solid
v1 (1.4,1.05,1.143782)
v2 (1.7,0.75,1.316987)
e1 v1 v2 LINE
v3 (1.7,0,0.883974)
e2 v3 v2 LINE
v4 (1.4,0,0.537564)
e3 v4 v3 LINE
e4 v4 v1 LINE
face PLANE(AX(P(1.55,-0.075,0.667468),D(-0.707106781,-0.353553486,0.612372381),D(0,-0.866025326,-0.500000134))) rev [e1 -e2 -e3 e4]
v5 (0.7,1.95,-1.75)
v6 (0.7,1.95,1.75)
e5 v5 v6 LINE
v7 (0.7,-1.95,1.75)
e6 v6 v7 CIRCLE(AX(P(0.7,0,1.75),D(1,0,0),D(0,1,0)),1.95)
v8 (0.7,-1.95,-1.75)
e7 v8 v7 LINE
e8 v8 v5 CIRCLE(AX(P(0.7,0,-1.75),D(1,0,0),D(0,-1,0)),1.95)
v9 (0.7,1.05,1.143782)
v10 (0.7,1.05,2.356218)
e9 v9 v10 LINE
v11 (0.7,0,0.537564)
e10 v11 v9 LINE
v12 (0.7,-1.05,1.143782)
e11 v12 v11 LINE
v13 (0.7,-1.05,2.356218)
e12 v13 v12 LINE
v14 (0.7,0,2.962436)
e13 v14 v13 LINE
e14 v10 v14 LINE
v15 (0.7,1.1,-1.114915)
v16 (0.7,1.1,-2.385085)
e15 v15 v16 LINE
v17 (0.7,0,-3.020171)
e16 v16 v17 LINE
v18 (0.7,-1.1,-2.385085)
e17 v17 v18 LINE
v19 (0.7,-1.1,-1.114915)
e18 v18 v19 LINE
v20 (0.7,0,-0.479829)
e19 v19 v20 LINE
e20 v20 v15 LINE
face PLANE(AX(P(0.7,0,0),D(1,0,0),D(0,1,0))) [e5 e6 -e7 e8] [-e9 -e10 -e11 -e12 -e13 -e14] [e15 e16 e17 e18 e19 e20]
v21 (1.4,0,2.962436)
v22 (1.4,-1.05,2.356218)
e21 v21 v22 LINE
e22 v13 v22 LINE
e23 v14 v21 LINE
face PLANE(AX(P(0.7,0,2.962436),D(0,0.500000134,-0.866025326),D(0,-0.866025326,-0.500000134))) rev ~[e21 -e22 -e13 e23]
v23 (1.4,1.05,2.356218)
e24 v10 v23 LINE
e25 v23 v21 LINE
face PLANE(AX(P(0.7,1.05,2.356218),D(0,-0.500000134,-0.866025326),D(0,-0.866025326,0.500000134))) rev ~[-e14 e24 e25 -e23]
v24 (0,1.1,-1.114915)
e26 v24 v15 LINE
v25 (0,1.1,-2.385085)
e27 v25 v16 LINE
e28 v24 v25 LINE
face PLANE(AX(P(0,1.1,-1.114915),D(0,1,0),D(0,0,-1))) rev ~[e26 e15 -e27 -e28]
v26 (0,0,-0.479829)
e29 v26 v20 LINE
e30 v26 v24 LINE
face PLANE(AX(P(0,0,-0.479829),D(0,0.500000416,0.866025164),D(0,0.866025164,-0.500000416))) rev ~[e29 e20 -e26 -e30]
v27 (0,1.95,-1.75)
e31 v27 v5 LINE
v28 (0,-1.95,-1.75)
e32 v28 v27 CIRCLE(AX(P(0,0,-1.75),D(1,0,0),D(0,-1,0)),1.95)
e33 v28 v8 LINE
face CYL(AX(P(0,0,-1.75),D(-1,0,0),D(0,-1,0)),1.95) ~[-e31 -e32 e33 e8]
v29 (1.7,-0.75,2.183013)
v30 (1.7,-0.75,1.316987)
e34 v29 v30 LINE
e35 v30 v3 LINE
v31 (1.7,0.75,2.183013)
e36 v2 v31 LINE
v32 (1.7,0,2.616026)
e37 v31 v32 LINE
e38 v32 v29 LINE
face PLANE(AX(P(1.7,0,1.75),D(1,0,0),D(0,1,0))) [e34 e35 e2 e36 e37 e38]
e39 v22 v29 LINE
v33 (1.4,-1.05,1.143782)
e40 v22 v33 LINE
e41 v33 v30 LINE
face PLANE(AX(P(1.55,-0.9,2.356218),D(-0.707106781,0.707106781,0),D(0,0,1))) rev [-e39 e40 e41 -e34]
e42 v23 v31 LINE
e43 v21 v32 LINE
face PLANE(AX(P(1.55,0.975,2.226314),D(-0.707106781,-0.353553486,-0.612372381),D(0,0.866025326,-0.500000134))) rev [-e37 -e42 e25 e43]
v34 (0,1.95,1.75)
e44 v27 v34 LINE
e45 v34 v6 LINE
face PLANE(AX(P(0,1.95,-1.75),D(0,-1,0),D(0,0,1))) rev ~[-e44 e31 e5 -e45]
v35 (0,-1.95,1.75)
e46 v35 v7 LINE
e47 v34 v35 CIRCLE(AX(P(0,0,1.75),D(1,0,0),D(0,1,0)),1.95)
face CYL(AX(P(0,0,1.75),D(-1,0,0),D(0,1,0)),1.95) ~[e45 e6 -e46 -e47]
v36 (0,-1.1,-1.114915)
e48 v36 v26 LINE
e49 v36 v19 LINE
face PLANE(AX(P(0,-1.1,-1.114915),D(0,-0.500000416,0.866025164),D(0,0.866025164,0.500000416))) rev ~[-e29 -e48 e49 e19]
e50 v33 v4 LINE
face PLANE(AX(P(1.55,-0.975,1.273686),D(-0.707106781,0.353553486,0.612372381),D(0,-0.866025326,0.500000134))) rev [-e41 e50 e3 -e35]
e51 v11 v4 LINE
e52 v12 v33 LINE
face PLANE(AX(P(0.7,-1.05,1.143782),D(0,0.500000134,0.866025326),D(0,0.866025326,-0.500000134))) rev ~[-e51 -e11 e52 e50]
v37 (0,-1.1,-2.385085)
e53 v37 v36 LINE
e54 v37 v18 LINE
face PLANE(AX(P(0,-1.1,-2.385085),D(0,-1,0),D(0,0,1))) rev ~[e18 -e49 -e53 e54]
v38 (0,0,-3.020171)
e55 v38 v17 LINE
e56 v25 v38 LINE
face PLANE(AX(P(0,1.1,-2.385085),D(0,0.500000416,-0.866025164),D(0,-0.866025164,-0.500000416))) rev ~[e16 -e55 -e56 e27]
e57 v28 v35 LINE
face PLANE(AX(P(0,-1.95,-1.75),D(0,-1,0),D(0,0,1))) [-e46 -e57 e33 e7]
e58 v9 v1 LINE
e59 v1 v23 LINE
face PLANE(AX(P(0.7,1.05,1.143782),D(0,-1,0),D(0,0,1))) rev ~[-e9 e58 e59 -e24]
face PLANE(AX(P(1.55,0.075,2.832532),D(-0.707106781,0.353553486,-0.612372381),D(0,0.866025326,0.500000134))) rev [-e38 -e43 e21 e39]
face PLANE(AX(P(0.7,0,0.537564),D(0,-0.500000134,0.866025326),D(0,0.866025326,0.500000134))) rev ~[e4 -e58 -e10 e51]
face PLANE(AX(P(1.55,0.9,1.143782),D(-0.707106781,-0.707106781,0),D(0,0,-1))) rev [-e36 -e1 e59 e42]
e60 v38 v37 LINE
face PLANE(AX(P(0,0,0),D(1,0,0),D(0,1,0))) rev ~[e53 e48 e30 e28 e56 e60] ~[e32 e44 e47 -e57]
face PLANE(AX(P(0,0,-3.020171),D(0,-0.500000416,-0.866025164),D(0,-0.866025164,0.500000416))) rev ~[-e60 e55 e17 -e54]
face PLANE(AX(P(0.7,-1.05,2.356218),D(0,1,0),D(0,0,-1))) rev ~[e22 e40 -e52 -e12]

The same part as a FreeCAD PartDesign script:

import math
import FreeCAD as App
import Part
import Sketcher
from FreeCAD import Vector
Q = App.Units.Quantity


def edges_at(feature, points):
    """Names of the edges that pass closest to the given points."""
    edges = feature.Shape.Edges
    near = lambda p: min(range(len(edges)), key=lambda i: edges[i].distToShape(Part.Vertex(*p))[0])
    return sorted({f"Edge{near(p) + 1}" for p in points})

doc = App.newDocument("Part")
params = doc.addObject("Spreadsheet::Sheet", "Params")
for row, (alias, value) in enumerate([
    ("sketch1_radius", "1.95 mm"),
    ("sketch1_height", "3.5 mm"),
    ("pad1_length", "0.7 mm"),
    ("pad2_length", "1 mm"),
    ("chamfer_size", "0.3 mm"),
], start=1):
    params.set(f"A{row}", alias)
    params.set(f"B{row}", "=" + value)
    params.setAlias(f"B{row}", alias)

body = doc.addObject("PartDesign::Body", "Body")

# Sketch on YZ plane
sketch1 = body.newObject("Sketcher::SketchObject", "Sketch")
sketch1.AttachmentSupport = (doc.getObject("YZ_Plane"), [""])
sketch1.MapMode = "FlatFace"
sketch1.addGeometry([
    Part.LineSegment(Vector(-1.95, 1.75, 0), Vector(-1.95, -1.75, 0)),
    Part.ArcOfCircle(Part.Circle(Vector(0, -1.75, 0), Vector(0, 0, 1), 1.95), math.radians(180), math.radians(360)),
    Part.LineSegment(Vector(1.95, -1.75, 0), Vector(1.95, 1.75, 0)),
    Part.ArcOfCircle(Part.Circle(Vector(0, 1.75, 0), Vector(0, 0, 1), 1.95), math.radians(0), math.radians(180)),
], False)
sketch1.addConstraint([
    Sketcher.Constraint("Tangent", 0, 2, 1, 1),
    Sketcher.Constraint("Tangent", 1, 2, 2, 1),
    Sketcher.Constraint("Tangent", 2, 2, 3, 1),
    Sketcher.Constraint("Tangent", 3, 2, 0, 1),
    Sketcher.Constraint("Vertical", 0),
    Sketcher.Constraint("Vertical", 2),
    Sketcher.Constraint("Symmetric", 1, 3, 3, 3, -1, 1),
    Sketcher.Constraint("Radius", 1, Q("1.95 mm")),
    Sketcher.Constraint("DistanceY", 0, 2, 0, 1, Q("3.5 mm")),
])
sketch1.setExpression("Constraints[7]", "Params.sketch1_radius")
sketch1.setExpression("Constraints[8]", "Params.sketch1_height")
pad1 = body.newObject("PartDesign::Pad", "Pad")
pad1.Profile = sketch1
pad1.setExpression("Length", "Params.pad1_length")

# Sketch on YZ plane
sketch2 = body.newObject("Sketcher::SketchObject", "Sketch001")
sketch2.AttachmentSupport = (doc.getObject("YZ_Plane"), [""])
sketch2.MapMode = "FlatFace"
sketch2.AttachmentOffset = App.Placement(Vector(0, 0, 0.7), App.Rotation())
sketch2.addGeometry([
    Part.LineSegment(Vector(1.05, 1.143782, 0), Vector(1.05, 2.356218, 0)),  # 0
    Part.LineSegment(Vector(1.05, 2.356218, 0), Vector(0, 2.962436, 0)),  # 1
    Part.LineSegment(Vector(0, 2.962436, 0), Vector(-1.05, 2.356218, 0)),  # 2
    Part.LineSegment(Vector(-1.05, 2.356218, 0), Vector(-1.05, 1.143782, 0)),  # 3
    Part.LineSegment(Vector(-1.05, 1.143782, 0), Vector(0, 0.537564, 0)),  # 4
    Part.LineSegment(Vector(0, 0.537564, 0), Vector(1.05, 1.143782, 0)),  # 5
], False)
sketch2.addConstraint([
    Sketcher.Constraint("Coincident", 0, 2, 1, 1),
    Sketcher.Constraint("Coincident", 1, 2, 2, 1),
    Sketcher.Constraint("Coincident", 2, 2, 3, 1),
    Sketcher.Constraint("Coincident", 3, 2, 4, 1),
    Sketcher.Constraint("Coincident", 4, 2, 5, 1),
    Sketcher.Constraint("Coincident", 5, 2, 0, 1),
    Sketcher.Constraint("Vertical", 0),
    Sketcher.Constraint("Vertical", 3),
    Sketcher.Constraint("Symmetric", 0, 2, 2, 2, -2),
    Sketcher.Constraint("PointOnObject", 1, 2, -2),
    Sketcher.Constraint("PointOnObject", 4, 2, -2),
    Sketcher.Constraint("Parallel", 1, 4),
    Sketcher.Constraint("Parallel", 2, 5),
    Sketcher.Constraint("Angle", 1, Q("149.999991 deg")),
    Sketcher.Constraint("DistanceX", 2, 2, 0, 2, Q("2.1 mm")),
    Sketcher.Constraint("DistanceY", 0, 1, 0, 2, Q("1.212436 mm")),
    Sketcher.Constraint("DistanceY", -1, 1, 0, 2, Q("2.356218 mm")),
])
pad2 = body.newObject("PartDesign::Pad", "Pad001")
pad2.Profile = sketch2
pad2.setExpression("Length", "Params.pad2_length")
doc.recompute()

chamfer = body.newObject("PartDesign::Chamfer", "Chamfer")
chamfer.Base = (pad2, edges_at(pad2, [
    (1.7, -0.525, 2.659),
    (1.7, 0.525, 2.659),
    (1.7, 1.05, 1.75),
    (1.7, 0.525, 0.841),
    (1.7, -0.525, 0.841),
    (1.7, -1.05, 1.75),
]))
chamfer.setExpression("Size", "Params.chamfer_size")

# Sketch on YZ plane
sketch3 = body.newObject("Sketcher::SketchObject", "Sketch002")
sketch3.AttachmentSupport = (doc.getObject("YZ_Plane"), [""])
sketch3.MapMode = "FlatFace"
sketch3.addGeometry([
    Part.LineSegment(Vector(-1.1, -2.385085, 0), Vector(-1.1, -1.114915, 0)),  # 0
    Part.LineSegment(Vector(-1.1, -1.114915, 0), Vector(0, -0.479829, 0)),  # 1
    Part.LineSegment(Vector(0, -0.479829, 0), Vector(1.1, -1.114915, 0)),  # 2
    Part.LineSegment(Vector(1.1, -1.114915, 0), Vector(1.1, -2.385085, 0)),  # 3
    Part.LineSegment(Vector(1.1, -2.385085, 0), Vector(0, -3.020171, 0)),  # 4
    Part.LineSegment(Vector(0, -3.020171, 0), Vector(-1.1, -2.385085, 0)),  # 5
], False)
sketch3.addConstraint([
    Sketcher.Constraint("Coincident", 0, 2, 1, 1),
    Sketcher.Constraint("Coincident", 1, 2, 2, 1),
    Sketcher.Constraint("Coincident", 2, 2, 3, 1),
    Sketcher.Constraint("Coincident", 3, 2, 4, 1),
    Sketcher.Constraint("Coincident", 4, 2, 5, 1),
    Sketcher.Constraint("Coincident", 5, 2, 0, 1),
    Sketcher.Constraint("Vertical", 0),
    Sketcher.Constraint("Vertical", 3),
    Sketcher.Constraint("Symmetric", 0, 2, 2, 2, -2),
    Sketcher.Constraint("PointOnObject", 1, 2, -2),
    Sketcher.Constraint("PointOnObject", 4, 2, -2),
    Sketcher.Constraint("Parallel", 1, 4),
    Sketcher.Constraint("Parallel", 2, 5),
    Sketcher.Constraint("DistanceX", 0, 2, -1, 1, Q("1.1 mm")),
    Sketcher.Constraint("DistanceY", 0, 1, 0, 2, Q("1.27017 mm")),
    Sketcher.Constraint("Distance", 1, Q("1.270171 mm")),
    Sketcher.Constraint("DistanceY", 1, 2, -1, 1, Q("0.479829 mm")),
])
pocket1 = body.newObject("PartDesign::Pocket", "Pocket")
pocket1.Profile = sketch3
pocket1.Type = "ThroughAll"
pocket1.Reversed = True

doc.recompute()
